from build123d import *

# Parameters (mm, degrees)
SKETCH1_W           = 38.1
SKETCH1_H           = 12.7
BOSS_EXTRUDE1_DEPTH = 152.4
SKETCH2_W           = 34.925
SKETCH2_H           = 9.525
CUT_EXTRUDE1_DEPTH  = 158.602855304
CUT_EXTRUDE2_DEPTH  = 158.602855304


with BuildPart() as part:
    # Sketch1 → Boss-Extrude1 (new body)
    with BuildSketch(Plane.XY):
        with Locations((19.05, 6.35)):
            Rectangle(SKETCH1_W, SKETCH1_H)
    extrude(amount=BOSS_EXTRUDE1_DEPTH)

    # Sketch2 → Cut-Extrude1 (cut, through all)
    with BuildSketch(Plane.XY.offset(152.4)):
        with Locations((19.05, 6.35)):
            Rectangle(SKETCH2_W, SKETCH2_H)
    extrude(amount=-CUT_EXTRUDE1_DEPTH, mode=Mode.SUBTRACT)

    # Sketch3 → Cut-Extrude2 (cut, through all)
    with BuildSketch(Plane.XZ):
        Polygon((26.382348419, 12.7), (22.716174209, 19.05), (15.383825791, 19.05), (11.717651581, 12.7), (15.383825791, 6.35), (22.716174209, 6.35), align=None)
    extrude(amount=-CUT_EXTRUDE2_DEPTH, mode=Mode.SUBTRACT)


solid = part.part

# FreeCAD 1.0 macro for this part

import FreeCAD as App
import Part
import Sketcher
Q = App.Units.Quantity

doc = App.newDocument("Part")
body = doc.addObject("PartDesign::Body", "Body")

# Sketch on XY plane
sketch1 = body.newObject("Sketcher::SketchObject", "Sketch")
sketch1.AttachmentSupport = (doc.getObject("XY_Plane"), [""])
sketch1.MapMode = "FlatFace"
sketch1.addGeometry([
    Part.LineSegment(App.Vector(0, 13, 0), App.Vector(0, 0, 0)),
    Part.LineSegment(App.Vector(0, 0, 0), App.Vector(38, 0, 0)),
    Part.LineSegment(App.Vector(38, 0, 0), App.Vector(38, 13, 0)),
    Part.LineSegment(App.Vector(38, 13, 0), App.Vector(0, 13, 0)),
], False)
sketch1.addConstraint([
    Sketcher.Constraint("Coincident", 0, 2, 1, 1),
    Sketcher.Constraint("Coincident", 1, 2, 2, 1),
    Sketcher.Constraint("Coincident", 2, 2, 3, 1),
    Sketcher.Constraint("Coincident", 3, 2, 0, 1),
    Sketcher.Constraint("Vertical", 0),
    Sketcher.Constraint("Horizontal", 1),
    Sketcher.Constraint("Vertical", 2),
    Sketcher.Constraint("Horizontal", 3),
    Sketcher.Constraint("Coincident", 0, 2, -1, 1),
    Sketcher.Constraint("DistanceX", 1, 1, 1, 2, Q("1.5 in")),
    Sketcher.Constraint("DistanceY", 0, 2, 0, 1, Q("0.5 in")),
])
pad1 = body.newObject("PartDesign::Pad", "Pad")
pad1.Profile = sketch1
pad1.Length = Q("6 in")

# Sketch on XY plane
sketch2 = body.newObject("Sketcher::SketchObject", "Sketch001")
sketch2.AttachmentSupport = (doc.getObject("XY_Plane"), [""])
sketch2.MapMode = "FlatFace"
sketch2.AttachmentOffset = App.Placement(App.Vector(0, 0, 6 * 25.4), App.Rotation())
sketch2.addGeometry([
    Part.LineSegment(App.Vector(2, 11, 0), App.Vector(2, 2, 0)),
    Part.LineSegment(App.Vector(2, 2, 0), App.Vector(37, 2, 0)),
    Part.LineSegment(App.Vector(37, 2, 0), App.Vector(37, 11, 0)),
    Part.LineSegment(App.Vector(37, 11, 0), App.Vector(2, 11, 0)),
], False)
sketch2.addConstraint([
    Sketcher.Constraint("Coincident", 0, 2, 1, 1),
    Sketcher.Constraint("Coincident", 1, 2, 2, 1),
    Sketcher.Constraint("Coincident", 2, 2, 3, 1),
    Sketcher.Constraint("Coincident", 3, 2, 0, 1),
    Sketcher.Constraint("Vertical", 0),
    Sketcher.Constraint("Horizontal", 1),
    Sketcher.Constraint("Vertical", 2),
    Sketcher.Constraint("Horizontal", 3),
    Sketcher.Constraint("DistanceX", 1, 1, 1, 2, Q("1.375 in")),
    Sketcher.Constraint("DistanceY", 0, 2, 0, 1, Q("0.375 in")),
    Sketcher.Constraint("DistanceX", -1, 1, 0, 2, Q("0.0625 in")),
    Sketcher.Constraint("DistanceY", -1, 1, 0, 2, Q("0.0625 in")),
])
pocket1 = body.newObject("PartDesign::Pocket", "Pocket")
pocket1.Profile = sketch2
pocket1.Type = "ThroughAll"

# Sketch on XZ plane
sketch3 = body.newObject("Sketcher::SketchObject", "Sketch002")
sketch3.AttachmentSupport = (doc.getObject("XZ_Plane"), [""])
sketch3.MapMode = "FlatFace"
sketch3.addGeometry([
    Part.LineSegment(App.Vector(26, 13, 0), App.Vector(23, 19, 0)),  # 0
    Part.LineSegment(App.Vector(23, 19, 0), App.Vector(15, 19, 0)),  # 1
    Part.LineSegment(App.Vector(15, 19, 0), App.Vector(12, 13, 0)),  # 2
    Part.LineSegment(App.Vector(12, 13, 0), App.Vector(15, 6, 0)),  # 3
    Part.LineSegment(App.Vector(15, 6, 0), App.Vector(23, 6, 0)),  # 4
    Part.LineSegment(App.Vector(23, 6, 0), App.Vector(26, 13, 0)),  # 5
], False)
sketch3.addConstraint([
    Sketcher.Constraint("Coincident", 0, 2, 1, 1),
    Sketcher.Constraint("Coincident", 1, 2, 2, 1),
    Sketcher.Constraint("Coincident", 2, 2, 3, 1),
    Sketcher.Constraint("Coincident", 3, 2, 4, 1),
    Sketcher.Constraint("Coincident", 4, 2, 5, 1),
    Sketcher.Constraint("Coincident", 5, 2, 0, 1),
    Sketcher.Constraint("Horizontal", 1),
    Sketcher.Constraint("Horizontal", 4),
    Sketcher.Constraint("Parallel", 0, 3),
    Sketcher.Constraint("Parallel", 2, 5),
    Sketcher.Constraint("Horizontal", 2, 2, 5, 2),
    Sketcher.Constraint("Vertical", 1, 2, 3, 2),
    Sketcher.Constraint("Vertical", 0, 2, 4, 2),
    Sketcher.Constraint("Angle", 0, Q("120 deg")),
    Sketcher.Constraint("DistanceY", -1, 1, 2, 2, Q("0.5 in")),
    Sketcher.Constraint("DistanceY", 3, 2, 1, 2, Q("0.5 in")),
    Sketcher.Constraint("DistanceX", 1, 2, 1, 1, 7.332348),
    Sketcher.Constraint("DistanceX", -1, 1, 2, 2, 11.717652),
])
pocket2 = body.newObject("PartDesign::Pocket", "Pocket001")
pocket2.Profile = sketch3
pocket2.Type = "ThroughAll"

doc.recompute()
